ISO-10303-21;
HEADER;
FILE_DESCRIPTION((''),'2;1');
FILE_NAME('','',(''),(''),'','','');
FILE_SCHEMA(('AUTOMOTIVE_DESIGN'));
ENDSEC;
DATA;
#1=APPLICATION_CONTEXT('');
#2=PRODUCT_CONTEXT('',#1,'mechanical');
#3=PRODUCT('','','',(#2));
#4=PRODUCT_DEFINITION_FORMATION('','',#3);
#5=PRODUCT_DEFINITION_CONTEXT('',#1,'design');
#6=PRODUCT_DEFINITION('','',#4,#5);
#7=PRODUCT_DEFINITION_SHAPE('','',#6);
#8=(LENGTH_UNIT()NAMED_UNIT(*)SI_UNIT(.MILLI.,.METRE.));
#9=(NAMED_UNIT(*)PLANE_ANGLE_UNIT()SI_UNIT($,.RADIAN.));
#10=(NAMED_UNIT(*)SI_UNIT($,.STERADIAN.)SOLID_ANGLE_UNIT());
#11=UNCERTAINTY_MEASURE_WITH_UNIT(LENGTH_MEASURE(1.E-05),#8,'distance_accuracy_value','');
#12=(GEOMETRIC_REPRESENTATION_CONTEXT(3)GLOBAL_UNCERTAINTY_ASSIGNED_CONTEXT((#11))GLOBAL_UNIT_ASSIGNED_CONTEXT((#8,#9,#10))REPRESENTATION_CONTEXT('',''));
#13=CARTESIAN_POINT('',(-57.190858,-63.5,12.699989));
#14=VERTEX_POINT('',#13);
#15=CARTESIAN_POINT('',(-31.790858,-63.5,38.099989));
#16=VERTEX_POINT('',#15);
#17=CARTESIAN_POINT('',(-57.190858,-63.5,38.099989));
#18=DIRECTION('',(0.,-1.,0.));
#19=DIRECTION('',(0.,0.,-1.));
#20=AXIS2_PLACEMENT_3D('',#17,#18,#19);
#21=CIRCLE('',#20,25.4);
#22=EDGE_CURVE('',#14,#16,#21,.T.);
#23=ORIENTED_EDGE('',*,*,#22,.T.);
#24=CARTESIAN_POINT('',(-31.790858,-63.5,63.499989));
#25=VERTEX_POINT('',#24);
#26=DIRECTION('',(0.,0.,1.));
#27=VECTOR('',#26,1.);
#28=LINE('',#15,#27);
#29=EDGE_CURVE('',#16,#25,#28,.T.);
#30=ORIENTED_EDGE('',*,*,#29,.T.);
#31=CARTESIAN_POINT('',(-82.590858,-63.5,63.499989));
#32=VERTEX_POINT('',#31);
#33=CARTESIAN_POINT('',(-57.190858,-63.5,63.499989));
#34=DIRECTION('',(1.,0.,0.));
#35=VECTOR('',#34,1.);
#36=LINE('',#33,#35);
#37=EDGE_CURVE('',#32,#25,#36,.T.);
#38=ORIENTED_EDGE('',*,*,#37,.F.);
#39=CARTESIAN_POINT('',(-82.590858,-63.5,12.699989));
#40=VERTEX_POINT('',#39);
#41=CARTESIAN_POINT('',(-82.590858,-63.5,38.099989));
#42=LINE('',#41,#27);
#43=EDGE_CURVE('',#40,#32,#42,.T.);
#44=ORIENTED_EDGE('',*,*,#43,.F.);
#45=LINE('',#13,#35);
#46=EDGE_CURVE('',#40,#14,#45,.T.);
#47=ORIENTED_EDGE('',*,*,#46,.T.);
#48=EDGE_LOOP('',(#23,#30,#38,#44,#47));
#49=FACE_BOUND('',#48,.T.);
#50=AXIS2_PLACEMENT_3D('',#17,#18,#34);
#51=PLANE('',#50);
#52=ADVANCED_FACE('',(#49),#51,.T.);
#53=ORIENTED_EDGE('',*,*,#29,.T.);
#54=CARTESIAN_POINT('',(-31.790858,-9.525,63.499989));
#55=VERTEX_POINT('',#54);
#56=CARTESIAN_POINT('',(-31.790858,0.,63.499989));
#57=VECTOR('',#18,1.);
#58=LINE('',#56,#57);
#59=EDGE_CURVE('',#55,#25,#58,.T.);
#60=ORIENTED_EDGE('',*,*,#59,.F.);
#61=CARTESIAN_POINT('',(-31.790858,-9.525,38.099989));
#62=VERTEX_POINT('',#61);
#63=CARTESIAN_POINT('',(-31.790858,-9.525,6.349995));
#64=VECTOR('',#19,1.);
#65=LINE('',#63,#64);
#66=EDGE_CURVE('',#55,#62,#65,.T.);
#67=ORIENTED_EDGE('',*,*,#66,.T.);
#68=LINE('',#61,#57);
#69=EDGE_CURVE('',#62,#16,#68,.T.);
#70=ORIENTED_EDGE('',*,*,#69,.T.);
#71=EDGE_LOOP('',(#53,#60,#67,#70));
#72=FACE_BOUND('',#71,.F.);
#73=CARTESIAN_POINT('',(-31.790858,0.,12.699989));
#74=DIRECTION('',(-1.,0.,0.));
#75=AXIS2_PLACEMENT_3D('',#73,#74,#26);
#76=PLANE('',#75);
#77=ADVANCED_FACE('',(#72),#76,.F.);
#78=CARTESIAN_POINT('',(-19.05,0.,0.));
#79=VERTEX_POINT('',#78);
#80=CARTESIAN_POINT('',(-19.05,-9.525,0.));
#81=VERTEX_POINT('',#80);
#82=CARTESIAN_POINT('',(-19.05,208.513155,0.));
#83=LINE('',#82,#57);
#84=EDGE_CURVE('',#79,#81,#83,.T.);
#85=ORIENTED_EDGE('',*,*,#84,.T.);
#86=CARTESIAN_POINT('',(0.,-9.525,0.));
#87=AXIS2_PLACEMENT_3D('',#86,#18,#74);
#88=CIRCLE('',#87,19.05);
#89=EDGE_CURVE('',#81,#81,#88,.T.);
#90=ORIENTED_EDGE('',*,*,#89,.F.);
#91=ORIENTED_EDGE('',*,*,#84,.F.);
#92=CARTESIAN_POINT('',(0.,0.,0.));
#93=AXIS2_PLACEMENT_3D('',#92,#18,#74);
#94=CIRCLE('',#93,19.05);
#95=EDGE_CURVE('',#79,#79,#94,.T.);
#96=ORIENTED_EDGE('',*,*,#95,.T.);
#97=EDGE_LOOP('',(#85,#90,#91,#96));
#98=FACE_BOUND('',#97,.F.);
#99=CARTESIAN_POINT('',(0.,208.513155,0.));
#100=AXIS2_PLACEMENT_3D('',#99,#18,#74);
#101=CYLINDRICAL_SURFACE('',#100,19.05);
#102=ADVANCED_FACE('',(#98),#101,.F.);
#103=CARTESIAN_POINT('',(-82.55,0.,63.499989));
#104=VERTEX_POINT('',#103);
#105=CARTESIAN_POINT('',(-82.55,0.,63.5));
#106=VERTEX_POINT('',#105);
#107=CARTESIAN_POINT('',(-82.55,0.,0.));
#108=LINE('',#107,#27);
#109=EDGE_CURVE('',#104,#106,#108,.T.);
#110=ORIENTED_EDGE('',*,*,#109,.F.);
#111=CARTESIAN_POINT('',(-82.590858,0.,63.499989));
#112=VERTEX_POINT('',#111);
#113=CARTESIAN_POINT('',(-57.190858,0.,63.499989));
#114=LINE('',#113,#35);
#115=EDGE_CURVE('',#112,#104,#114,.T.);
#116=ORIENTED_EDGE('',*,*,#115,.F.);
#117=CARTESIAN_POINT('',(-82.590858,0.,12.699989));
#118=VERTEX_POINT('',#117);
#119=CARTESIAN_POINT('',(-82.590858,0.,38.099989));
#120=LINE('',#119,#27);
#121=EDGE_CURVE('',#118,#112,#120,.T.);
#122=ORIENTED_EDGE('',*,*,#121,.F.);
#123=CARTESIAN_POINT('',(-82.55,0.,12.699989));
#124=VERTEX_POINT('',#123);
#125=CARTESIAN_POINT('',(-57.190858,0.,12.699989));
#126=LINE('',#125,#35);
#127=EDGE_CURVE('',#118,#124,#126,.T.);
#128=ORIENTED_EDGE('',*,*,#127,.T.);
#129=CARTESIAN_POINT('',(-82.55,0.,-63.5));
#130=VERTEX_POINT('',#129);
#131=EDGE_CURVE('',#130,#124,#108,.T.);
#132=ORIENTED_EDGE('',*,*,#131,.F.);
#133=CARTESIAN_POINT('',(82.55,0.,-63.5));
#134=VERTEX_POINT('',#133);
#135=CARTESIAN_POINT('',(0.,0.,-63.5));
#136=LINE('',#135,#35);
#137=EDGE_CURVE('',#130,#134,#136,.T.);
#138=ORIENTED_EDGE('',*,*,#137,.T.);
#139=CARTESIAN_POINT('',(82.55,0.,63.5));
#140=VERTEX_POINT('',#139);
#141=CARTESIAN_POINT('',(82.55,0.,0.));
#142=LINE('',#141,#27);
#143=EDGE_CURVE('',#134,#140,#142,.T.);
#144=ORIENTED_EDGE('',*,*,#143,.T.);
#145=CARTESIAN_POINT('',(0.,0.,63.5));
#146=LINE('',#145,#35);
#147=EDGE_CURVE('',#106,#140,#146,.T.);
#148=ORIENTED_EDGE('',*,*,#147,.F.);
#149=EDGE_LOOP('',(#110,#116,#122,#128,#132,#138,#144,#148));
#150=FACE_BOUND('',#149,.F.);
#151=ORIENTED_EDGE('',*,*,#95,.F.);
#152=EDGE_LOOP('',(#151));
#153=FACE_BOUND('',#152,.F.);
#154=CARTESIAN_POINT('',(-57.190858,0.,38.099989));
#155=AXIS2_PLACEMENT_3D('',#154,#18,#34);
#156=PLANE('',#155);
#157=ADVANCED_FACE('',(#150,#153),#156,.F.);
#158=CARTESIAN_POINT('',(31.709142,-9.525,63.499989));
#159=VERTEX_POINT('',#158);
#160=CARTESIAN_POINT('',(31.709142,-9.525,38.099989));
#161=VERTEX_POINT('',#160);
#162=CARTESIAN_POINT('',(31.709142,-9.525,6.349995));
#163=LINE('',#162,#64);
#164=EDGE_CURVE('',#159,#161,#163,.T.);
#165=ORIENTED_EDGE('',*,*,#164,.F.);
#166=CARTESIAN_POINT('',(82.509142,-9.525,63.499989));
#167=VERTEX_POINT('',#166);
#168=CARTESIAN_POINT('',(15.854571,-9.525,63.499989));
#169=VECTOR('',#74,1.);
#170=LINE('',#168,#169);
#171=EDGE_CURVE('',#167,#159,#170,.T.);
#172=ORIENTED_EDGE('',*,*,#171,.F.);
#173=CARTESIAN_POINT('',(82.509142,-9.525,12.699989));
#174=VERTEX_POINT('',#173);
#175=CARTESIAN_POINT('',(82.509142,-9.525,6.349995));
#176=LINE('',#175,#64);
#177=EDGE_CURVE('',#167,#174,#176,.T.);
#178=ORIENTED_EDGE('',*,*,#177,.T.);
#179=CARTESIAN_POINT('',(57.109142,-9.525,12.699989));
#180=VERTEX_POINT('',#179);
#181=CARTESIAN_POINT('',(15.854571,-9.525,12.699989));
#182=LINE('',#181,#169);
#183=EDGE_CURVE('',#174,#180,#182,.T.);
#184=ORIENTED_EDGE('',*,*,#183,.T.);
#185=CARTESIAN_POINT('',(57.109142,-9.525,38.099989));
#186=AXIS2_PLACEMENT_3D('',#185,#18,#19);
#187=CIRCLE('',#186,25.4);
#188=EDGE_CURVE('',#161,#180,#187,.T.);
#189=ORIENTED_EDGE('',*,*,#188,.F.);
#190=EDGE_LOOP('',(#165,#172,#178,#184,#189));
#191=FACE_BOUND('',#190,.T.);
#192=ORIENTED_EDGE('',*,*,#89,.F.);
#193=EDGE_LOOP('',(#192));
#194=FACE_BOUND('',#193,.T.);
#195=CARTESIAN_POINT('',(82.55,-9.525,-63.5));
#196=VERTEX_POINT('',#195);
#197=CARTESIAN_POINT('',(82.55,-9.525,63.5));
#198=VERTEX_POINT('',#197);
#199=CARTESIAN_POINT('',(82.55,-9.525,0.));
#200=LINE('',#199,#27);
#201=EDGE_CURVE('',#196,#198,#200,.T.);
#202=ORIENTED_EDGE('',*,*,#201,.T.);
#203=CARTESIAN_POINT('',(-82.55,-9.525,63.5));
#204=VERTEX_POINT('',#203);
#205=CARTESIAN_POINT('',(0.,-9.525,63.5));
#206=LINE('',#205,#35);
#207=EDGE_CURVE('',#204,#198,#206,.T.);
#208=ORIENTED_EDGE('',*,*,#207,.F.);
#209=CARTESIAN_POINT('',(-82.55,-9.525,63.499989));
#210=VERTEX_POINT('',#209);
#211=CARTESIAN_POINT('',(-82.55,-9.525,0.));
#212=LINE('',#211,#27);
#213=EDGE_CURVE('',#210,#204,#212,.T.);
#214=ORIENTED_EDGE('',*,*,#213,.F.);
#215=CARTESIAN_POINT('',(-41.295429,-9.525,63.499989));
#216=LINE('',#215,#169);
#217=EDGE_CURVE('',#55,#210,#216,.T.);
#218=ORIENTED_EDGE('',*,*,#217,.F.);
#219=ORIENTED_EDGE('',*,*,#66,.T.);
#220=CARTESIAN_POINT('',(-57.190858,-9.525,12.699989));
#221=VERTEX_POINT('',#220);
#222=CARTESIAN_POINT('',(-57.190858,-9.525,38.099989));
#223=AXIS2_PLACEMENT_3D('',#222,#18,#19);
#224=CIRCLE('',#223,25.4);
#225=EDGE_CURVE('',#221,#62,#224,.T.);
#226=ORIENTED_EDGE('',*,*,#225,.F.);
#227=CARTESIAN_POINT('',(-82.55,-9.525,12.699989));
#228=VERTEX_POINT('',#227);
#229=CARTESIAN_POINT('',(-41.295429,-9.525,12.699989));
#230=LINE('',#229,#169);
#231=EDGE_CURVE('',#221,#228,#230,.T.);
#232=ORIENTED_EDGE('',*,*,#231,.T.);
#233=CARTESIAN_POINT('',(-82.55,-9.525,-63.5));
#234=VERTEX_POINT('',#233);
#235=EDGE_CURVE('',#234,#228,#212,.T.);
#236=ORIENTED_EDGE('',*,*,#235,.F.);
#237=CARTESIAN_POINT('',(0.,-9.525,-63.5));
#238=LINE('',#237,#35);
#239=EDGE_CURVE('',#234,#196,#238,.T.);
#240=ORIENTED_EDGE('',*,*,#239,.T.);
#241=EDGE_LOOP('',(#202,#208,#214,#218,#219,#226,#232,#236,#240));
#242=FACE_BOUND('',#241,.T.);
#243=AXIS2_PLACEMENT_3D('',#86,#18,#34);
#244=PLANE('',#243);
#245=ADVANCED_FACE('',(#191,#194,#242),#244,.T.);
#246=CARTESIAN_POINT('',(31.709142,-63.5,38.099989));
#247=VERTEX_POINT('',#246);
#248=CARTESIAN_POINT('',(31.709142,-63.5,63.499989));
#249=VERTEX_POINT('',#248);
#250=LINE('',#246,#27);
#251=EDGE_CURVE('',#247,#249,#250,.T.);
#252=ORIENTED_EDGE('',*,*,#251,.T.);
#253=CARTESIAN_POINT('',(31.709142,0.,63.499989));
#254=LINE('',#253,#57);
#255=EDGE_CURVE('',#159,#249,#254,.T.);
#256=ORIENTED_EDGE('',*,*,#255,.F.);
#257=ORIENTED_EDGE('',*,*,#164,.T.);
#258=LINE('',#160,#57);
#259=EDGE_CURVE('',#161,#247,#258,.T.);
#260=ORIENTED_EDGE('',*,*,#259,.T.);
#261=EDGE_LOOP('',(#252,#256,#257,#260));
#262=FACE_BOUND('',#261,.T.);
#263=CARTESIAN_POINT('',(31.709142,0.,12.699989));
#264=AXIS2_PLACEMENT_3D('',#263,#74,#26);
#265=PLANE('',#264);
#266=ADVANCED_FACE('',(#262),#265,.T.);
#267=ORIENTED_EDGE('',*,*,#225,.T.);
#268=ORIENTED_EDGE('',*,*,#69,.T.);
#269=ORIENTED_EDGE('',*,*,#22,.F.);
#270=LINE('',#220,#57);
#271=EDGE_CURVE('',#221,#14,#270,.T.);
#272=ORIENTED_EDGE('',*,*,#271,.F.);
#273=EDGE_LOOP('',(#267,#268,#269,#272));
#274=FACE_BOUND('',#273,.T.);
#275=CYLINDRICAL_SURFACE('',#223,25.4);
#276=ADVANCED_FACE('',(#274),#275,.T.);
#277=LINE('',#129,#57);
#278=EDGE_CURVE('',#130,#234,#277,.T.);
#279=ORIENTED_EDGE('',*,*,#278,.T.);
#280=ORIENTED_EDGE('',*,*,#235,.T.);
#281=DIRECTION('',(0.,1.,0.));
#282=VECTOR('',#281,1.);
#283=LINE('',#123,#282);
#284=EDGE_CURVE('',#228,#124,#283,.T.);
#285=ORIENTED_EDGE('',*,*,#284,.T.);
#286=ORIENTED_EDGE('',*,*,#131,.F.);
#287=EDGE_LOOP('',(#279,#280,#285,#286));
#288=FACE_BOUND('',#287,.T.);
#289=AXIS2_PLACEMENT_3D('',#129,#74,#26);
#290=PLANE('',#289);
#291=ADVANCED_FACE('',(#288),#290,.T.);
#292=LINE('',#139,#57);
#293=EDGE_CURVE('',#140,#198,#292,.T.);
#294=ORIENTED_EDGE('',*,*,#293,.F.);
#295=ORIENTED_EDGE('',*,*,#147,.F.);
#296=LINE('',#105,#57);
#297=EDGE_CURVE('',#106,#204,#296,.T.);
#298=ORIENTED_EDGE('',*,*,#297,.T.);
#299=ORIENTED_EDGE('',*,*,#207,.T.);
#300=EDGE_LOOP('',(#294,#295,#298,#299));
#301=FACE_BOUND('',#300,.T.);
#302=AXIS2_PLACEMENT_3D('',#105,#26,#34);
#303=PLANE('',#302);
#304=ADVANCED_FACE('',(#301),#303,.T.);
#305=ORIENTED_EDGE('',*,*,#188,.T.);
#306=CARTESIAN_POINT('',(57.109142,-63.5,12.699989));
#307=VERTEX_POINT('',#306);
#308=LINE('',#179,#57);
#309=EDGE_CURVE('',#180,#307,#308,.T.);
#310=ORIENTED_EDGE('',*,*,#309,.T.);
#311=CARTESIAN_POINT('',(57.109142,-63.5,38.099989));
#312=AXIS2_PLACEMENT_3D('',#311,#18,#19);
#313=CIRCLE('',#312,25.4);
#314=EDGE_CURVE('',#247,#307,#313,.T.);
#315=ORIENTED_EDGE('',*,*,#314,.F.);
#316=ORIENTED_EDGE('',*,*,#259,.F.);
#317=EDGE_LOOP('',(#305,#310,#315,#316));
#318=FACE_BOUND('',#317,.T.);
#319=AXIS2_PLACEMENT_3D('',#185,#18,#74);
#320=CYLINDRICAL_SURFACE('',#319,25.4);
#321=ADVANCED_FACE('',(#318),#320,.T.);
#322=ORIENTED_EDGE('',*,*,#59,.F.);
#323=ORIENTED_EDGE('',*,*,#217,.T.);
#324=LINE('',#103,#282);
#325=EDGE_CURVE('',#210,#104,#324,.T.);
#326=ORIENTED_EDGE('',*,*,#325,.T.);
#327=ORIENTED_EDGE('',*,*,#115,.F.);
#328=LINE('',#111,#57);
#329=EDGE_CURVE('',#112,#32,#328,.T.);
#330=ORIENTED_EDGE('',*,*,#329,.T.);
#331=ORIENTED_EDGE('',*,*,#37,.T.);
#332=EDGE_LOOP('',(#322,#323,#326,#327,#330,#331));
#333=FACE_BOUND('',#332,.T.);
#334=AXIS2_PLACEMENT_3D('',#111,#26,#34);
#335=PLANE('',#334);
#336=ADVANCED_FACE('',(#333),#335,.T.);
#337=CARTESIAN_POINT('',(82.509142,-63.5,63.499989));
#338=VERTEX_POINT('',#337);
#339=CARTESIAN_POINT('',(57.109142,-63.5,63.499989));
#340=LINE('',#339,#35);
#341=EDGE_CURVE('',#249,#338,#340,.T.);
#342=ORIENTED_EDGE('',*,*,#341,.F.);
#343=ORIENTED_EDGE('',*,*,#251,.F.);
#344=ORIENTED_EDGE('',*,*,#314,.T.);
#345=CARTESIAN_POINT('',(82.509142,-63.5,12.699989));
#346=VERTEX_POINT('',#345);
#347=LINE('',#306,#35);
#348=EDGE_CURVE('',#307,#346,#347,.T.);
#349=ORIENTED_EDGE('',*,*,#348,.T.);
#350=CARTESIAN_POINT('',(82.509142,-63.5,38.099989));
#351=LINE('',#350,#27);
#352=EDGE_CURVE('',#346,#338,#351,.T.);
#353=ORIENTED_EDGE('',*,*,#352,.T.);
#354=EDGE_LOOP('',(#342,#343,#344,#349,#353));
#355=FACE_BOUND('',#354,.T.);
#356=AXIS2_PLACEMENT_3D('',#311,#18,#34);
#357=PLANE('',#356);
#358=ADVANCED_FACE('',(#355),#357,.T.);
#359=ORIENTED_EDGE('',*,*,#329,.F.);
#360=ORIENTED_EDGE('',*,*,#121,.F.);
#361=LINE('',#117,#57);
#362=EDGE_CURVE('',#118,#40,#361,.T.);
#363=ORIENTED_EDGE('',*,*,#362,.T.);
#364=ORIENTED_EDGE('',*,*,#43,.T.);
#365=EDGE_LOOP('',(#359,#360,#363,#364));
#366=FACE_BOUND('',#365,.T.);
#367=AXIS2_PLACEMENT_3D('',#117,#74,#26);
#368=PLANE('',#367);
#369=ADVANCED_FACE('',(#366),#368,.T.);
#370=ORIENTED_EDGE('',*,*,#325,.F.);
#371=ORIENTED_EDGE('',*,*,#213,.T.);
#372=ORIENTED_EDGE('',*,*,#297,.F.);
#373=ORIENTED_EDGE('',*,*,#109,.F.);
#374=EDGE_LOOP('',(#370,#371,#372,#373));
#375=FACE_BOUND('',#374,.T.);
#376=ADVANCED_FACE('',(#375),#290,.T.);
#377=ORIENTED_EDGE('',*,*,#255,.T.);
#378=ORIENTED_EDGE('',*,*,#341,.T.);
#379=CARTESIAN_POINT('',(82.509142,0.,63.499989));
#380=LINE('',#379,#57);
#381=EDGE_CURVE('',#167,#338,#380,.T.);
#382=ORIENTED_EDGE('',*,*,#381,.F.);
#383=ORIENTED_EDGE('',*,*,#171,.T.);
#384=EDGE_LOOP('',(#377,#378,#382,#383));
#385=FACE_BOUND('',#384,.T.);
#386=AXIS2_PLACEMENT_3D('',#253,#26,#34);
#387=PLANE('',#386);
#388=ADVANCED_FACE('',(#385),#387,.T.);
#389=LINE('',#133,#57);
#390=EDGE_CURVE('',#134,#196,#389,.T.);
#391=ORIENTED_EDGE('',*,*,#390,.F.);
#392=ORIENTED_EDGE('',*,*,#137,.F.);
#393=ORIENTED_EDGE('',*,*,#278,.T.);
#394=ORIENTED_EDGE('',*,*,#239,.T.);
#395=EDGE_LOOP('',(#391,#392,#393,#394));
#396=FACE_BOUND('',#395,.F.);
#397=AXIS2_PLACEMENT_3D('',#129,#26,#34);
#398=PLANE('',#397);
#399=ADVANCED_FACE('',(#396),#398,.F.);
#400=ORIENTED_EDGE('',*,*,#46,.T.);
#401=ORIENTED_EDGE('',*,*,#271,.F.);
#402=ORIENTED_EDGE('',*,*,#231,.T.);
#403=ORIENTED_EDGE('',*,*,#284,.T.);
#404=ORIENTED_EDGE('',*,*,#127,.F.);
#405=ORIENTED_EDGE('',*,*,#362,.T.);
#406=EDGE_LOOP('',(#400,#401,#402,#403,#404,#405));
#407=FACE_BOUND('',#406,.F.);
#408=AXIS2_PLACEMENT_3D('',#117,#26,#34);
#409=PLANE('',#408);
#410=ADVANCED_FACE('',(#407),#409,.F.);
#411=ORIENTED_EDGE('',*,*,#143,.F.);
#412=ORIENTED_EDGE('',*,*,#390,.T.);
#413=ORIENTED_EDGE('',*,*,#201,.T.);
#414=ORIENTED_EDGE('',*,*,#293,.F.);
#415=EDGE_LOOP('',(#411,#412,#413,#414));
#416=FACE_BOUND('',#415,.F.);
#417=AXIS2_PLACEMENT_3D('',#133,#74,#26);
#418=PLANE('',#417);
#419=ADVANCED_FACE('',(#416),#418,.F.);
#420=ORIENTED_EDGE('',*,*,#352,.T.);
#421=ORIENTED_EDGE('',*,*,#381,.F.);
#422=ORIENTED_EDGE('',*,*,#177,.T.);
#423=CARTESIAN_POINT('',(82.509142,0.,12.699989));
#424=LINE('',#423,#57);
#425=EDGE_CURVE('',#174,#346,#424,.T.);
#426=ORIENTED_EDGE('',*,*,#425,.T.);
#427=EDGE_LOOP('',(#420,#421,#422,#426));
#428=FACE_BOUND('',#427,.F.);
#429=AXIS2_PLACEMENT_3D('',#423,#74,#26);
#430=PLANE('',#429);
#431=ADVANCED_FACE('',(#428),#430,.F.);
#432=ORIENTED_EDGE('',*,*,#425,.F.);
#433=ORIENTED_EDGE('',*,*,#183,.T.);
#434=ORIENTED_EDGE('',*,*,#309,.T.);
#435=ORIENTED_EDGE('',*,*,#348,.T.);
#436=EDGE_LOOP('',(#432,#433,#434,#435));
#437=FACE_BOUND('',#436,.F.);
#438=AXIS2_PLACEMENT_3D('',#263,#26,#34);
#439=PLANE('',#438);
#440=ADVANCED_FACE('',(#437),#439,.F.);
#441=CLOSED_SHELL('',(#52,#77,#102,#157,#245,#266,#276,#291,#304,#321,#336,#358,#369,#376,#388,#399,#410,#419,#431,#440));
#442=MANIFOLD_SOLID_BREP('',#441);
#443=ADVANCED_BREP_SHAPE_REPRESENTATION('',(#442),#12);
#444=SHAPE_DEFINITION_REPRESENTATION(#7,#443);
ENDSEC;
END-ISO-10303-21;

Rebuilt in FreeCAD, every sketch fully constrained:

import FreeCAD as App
import Part
import Sketcher
from FreeCAD import Vector
Q = App.Units.Quantity


def edges_at(feature, points):
    """Names of the edges that pass closest to the given points."""
    edges = feature.Shape.Edges
    near = lambda p: min(range(len(edges)), key=lambda i: edges[i].distToShape(Part.Vertex(*p))[0])
    return sorted({f"Edge{near(p) + 1}" for p in points})


def add_polygon(sketch, points):
    """Adds a closed chain of lines whose ends are joined by coincident constraints."""
    first, n = sketch.GeometryCount, len(points)
    for a, b in zip(points, points[1:] + points[:1]):
        sketch.addGeometry(Part.LineSegment(App.Vector(*a, 0), App.Vector(*b, 0)), False)
    for i in range(n):
        sketch.addConstraint(Sketcher.Constraint("Coincident", first + i, 2, first + (i + 1) % n, 1))

doc = App.newDocument("Part")
params = doc.addObject("Spreadsheet::Sheet", "Params")
for row, (alias, value) in enumerate([
    ("sketch1_height", "5 in"),
    ("sketch1_width", "6.5 in"),
    ("pad1_length", "0.375 in"),
    ("sketch2_diameter", "1.5 in"),
    ("hole_diameter", "1.5 in"),
    ("sketch3_width", "2 in"),
    ("pad2_length", "2.5 in"),
    ("fillet_radius", "1 in"),
], start=1):
    params.set(f"A{row}", alias)
    params.set(f"B{row}", "=" + value)
    params.setAlias(f"B{row}", alias)

body = doc.addObject("PartDesign::Body", "Body")

sketch1 = body.newObject("Sketcher::SketchObject", "Sketch")
sketch1.AttachmentSupport = (doc.getObject("XZ_Plane"), [""])
sketch1.MapMode = "FlatFace"
add_polygon(sketch1, [(-83, 64), (-83, -64), (83, -64), (83, 64)])
sketch1.addConstraint(Sketcher.Constraint("Vertical", 0))
sketch1.addConstraint(Sketcher.Constraint("Horizontal", 1))
sketch1.addConstraint(Sketcher.Constraint("Vertical", 2))
sketch1.addConstraint(Sketcher.Constraint("Horizontal", 3))
sketch1.addConstraint(Sketcher.Constraint("Symmetric", 0, 2, 2, 2, -1, 1))
sketch1.addConstraint(Sketcher.Constraint("DistanceY", 0, 2, 0, 1, Q("5 in")))
sketch1.addConstraint(Sketcher.Constraint("DistanceX", 1, 1, 1, 2, Q("6.5 in")))
sketch1.setExpression("Constraints[9]", "Params.sketch1_height")
sketch1.setExpression("Constraints[10]", "Params.sketch1_width")
pad1 = body.newObject("PartDesign::Pad", "Pad")
pad1.Profile = sketch1
pad1.setExpression("Length", "Params.pad1_length")

sketch2 = body.newObject("Sketcher::SketchObject", "Sketch001")
sketch2.AttachmentSupport = (doc.getObject("XZ_Plane"), [""])
sketch2.MapMode = "FlatFace"
sketch2.addGeometry(Part.Circle(Vector(0, 0, 0), Vector(0, 0, 1), 19), False)
sketch2.addConstraint(Sketcher.Constraint("Coincident", 0, 3, -1, 1))
sketch2.addConstraint(Sketcher.Constraint("Diameter", 0, Q("1.5 in")))
sketch2.setExpression("Constraints[1]", "Params.sketch2_diameter")
doc.recompute()
hole = body.newObject("PartDesign::Hole", "Hole")
hole.Profile = sketch2
hole.ThreadType = "None"
hole.setExpression("Diameter", "Params.hole_diameter")
hole.DepthType = "ThroughAll"
hole.Reversed = True

sketch3 = body.newObject("Sketcher::SketchObject", "Sketch002")
sketch3.AttachmentSupport = (doc.getObject("XZ_Plane"), [""])
sketch3.MapMode = "FlatFace"
add_polygon(sketch3, [(-83, 63), (-83, 13), (-32, 13), (-32, 63)])
add_polygon(sketch3, [(32, 63), (32, 13), (83, 13), (83, 63)])
sketch3.addConstraint(Sketcher.Constraint("Vertical", 0))
sketch3.addConstraint(Sketcher.Constraint("Horizontal", 1))
sketch3.addConstraint(Sketcher.Constraint("Vertical", 2))
sketch3.addConstraint(Sketcher.Constraint("Horizontal", 3))
sketch3.addConstraint(Sketcher.Constraint("Vertical", 4))
sketch3.addConstraint(Sketcher.Constraint("Horizontal", 5))
sketch3.addConstraint(Sketcher.Constraint("Vertical", 6))
sketch3.addConstraint(Sketcher.Constraint("Horizontal", 7))
sketch3.addConstraint(Sketcher.Constraint("Horizontal", 1, 2, 4, 2))
sketch3.addConstraint(Sketcher.Constraint("Horizontal", 3, 2, 6, 2))
sketch3.addConstraint(Sketcher.Constraint("Equal", 3, 5))
sketch3.addConstraint(Sketcher.Constraint("Equal", 7, 0))
sketch3.addConstraint(Sketcher.Constraint("DistanceX", 1, 1, 1, 2, Q("2 in")))
sketch3.addConstraint(Sketcher.Constraint("DistanceX", 1, 2, 4, 2, Q("2.5 in")))
sketch3.addConstraint(Sketcher.Constraint("DistanceY", -1, 1, 0, 2, 12.699989))
sketch3.addConstraint(Sketcher.Constraint("DistanceX", 1, 2, -1, 1, 31.790858))
sketch3.setExpression("Constraints[20]", "Params.sketch3_width")
pad2 = body.newObject("PartDesign::Pad", "Pad001")
pad2.Profile = sketch3
pad2.setExpression("Length", "Params.pad2_length")
doc.recompute()

fillet = body.newObject("PartDesign::Fillet", "Fillet")
fillet.Base = (pad2, edges_at(pad2, [(-31.791, -36.513, 12.7), (31.709, -36.513, 12.7)]))
fillet.setExpression("Radius", "Params.fillet_radius")

doc.recompute()
